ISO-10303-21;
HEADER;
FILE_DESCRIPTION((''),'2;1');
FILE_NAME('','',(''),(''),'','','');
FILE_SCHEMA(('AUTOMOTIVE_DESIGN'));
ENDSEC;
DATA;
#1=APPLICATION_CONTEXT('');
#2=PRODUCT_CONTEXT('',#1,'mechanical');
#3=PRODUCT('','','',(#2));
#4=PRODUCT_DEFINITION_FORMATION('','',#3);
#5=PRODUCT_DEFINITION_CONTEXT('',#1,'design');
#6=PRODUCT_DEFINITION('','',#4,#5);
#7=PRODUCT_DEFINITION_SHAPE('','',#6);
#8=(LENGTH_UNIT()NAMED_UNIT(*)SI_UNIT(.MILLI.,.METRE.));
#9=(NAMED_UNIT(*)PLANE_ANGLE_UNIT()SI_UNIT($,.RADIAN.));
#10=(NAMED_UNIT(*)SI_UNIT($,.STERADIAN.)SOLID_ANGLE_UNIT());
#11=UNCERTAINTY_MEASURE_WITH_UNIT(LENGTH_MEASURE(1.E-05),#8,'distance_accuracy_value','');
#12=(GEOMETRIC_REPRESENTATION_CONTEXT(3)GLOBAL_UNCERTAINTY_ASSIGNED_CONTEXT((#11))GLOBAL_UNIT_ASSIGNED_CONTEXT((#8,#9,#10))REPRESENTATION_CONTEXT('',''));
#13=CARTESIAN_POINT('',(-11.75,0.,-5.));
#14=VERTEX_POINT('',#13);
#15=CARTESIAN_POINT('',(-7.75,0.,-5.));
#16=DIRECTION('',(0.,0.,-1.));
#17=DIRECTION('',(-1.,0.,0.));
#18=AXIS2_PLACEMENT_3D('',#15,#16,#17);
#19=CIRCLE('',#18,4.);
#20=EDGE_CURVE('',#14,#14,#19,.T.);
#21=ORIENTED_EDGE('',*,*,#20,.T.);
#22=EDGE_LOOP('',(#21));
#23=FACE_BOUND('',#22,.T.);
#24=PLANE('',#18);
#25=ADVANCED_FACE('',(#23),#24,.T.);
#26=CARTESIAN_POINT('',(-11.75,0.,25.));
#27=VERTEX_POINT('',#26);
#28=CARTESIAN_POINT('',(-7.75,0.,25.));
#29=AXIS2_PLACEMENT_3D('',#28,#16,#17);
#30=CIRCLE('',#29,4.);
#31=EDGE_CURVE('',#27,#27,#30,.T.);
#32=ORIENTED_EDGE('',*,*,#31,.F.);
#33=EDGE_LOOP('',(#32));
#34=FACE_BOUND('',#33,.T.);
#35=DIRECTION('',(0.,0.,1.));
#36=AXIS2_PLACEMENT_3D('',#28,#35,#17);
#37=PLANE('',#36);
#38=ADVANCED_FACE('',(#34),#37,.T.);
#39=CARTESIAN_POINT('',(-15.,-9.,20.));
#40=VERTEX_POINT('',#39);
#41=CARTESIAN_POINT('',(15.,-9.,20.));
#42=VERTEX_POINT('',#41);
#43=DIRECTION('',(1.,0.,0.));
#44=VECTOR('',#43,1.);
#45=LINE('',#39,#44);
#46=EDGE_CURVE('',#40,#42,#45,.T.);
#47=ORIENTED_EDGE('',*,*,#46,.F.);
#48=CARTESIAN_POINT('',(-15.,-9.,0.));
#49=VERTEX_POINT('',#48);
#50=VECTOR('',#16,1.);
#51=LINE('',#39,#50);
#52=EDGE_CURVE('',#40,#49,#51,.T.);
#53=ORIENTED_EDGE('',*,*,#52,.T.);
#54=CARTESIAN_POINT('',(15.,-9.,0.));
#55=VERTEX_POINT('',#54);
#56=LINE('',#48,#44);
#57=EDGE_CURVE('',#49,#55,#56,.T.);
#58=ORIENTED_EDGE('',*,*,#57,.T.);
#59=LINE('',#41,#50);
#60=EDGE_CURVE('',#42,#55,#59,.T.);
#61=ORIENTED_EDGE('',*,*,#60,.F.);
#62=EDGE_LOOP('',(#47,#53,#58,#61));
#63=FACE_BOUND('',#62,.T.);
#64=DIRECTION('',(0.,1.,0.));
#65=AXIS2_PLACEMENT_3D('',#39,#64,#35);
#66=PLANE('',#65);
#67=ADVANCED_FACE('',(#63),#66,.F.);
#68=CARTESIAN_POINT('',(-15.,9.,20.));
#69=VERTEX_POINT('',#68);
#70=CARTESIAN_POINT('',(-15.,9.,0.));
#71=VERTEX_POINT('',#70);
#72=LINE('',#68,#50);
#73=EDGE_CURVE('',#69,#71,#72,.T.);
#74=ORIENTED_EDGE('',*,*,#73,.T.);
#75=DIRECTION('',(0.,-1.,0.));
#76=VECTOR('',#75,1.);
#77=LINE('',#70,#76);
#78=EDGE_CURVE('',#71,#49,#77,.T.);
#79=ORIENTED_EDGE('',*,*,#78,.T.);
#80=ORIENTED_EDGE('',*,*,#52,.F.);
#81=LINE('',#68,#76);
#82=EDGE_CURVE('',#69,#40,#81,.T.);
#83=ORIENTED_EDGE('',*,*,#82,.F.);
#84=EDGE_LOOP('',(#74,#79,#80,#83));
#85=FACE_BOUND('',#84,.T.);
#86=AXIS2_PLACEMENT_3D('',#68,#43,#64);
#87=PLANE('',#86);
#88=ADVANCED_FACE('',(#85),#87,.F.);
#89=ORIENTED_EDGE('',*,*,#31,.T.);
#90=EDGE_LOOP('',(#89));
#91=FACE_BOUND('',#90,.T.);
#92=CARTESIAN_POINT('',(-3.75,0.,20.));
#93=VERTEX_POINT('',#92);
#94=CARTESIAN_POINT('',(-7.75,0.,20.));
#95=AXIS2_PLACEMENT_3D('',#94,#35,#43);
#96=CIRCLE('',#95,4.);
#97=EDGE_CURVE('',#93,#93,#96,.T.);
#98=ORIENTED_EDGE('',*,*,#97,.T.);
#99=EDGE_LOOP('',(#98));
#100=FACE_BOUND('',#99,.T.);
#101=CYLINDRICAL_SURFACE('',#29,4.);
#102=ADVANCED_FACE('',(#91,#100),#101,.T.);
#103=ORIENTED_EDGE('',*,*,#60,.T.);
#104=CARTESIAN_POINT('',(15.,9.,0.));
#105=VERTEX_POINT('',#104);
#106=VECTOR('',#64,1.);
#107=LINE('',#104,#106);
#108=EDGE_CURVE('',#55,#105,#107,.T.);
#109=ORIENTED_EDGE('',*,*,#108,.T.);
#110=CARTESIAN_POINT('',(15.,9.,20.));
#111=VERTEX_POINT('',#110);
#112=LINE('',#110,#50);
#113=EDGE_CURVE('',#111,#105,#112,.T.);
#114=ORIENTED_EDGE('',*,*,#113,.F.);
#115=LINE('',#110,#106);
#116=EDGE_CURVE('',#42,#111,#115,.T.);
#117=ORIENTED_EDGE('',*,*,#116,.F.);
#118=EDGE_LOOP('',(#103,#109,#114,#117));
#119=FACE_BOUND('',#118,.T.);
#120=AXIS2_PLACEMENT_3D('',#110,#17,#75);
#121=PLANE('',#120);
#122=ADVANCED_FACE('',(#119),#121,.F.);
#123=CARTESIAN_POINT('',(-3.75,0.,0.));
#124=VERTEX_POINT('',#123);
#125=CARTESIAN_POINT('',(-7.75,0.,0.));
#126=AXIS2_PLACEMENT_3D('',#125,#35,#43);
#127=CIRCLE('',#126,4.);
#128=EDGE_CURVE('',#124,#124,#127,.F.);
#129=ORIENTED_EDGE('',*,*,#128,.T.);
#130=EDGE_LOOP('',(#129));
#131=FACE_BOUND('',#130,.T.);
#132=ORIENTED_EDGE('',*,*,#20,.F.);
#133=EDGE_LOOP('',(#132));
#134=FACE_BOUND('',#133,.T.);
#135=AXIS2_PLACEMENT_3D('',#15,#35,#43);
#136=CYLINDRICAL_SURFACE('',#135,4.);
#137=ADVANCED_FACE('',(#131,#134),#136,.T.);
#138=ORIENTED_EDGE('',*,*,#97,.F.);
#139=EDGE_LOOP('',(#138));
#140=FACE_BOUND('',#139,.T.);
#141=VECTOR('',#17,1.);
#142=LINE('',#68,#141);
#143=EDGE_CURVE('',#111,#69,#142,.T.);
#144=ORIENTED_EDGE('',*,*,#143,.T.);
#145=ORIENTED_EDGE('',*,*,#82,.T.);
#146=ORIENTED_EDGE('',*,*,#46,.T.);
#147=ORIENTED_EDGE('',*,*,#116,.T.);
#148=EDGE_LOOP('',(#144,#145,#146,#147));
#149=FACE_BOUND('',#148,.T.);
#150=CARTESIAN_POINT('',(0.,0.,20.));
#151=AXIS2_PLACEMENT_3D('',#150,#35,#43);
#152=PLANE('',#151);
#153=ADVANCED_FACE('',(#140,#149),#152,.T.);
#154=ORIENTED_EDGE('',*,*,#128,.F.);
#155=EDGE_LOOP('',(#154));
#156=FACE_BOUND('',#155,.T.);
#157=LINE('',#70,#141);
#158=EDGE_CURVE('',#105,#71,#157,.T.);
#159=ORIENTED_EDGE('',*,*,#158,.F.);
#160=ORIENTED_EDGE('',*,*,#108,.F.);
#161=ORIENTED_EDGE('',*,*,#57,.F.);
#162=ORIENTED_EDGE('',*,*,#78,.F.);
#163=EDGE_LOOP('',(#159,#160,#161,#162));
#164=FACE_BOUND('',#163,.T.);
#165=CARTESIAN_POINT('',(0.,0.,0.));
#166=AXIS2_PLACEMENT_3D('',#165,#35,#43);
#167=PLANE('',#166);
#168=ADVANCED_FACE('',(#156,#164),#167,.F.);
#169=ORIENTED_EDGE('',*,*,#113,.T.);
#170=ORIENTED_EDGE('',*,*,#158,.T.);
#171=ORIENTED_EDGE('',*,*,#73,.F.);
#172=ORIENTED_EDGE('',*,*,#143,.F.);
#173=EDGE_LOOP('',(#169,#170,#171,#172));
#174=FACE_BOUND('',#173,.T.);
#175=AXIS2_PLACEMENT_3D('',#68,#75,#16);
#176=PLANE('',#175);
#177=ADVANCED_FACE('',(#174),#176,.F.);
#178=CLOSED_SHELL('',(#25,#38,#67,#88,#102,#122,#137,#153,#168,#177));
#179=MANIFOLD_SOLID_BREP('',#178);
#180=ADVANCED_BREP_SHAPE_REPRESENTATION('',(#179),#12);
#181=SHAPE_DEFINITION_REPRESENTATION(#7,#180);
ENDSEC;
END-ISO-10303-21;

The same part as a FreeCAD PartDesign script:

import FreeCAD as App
import Part
import Sketcher
Q = App.Units.Quantity

doc = App.newDocument("Part")
body = doc.addObject("PartDesign::Body", "Body")

# Sketch on XY plane
sketch1 = body.newObject("Sketcher::SketchObject", "Sketch")
sketch1.AttachmentSupport = (doc.getObject("XY_Plane"), [""])
sketch1.MapMode = "FlatFace"
sketch1.addGeometry([
    Part.LineSegment(App.Vector(-15, 9, 0), App.Vector(-15, -9, 0)),
    Part.LineSegment(App.Vector(-15, -9, 0), App.Vector(15, -9, 0)),
    Part.LineSegment(App.Vector(15, -9, 0), App.Vector(15, 9, 0)),
    Part.LineSegment(App.Vector(15, 9, 0), App.Vector(-15, 9, 0)),
], False)
sketch1.addConstraint([
    Sketcher.Constraint("Coincident", 0, 2, 1, 1),
    Sketcher.Constraint("Coincident", 1, 2, 2, 1),
    Sketcher.Constraint("Coincident", 2, 2, 3, 1),
    Sketcher.Constraint("Coincident", 3, 2, 0, 1),
    Sketcher.Constraint("Vertical", 0),
    Sketcher.Constraint("Horizontal", 1),
    Sketcher.Constraint("Vertical", 2),
    Sketcher.Constraint("Horizontal", 3),
    Sketcher.Constraint("Symmetric", 0, 2, 2, 2, -1, 1),
    Sketcher.Constraint("DistanceX", 1, 1, 1, 2, Q("30 mm")),
    Sketcher.Constraint("DistanceY", 0, 2, 0, 1, Q("18 mm")),
])
pad1 = body.newObject("PartDesign::Pad", "Pad")
pad1.Profile = sketch1
pad1.Length = 20

# Sketch on XY plane
sketch2 = body.newObject("Sketcher::SketchObject", "Sketch001")
sketch2.AttachmentSupport = (doc.getObject("XY_Plane"), [""])
sketch2.MapMode = "FlatFace"
sketch2.addGeometry(Part.Circle(App.Vector(-7.75, 0, 0), App.Vector(0, 0, 1), 4), False)
sketch2.addConstraint([
    Sketcher.Constraint("PointOnObject", 0, 3, -1),
    Sketcher.Constraint("Diameter", 0, Q("8 mm")),
    Sketcher.Constraint("DistanceX", 0, 3, -1, 1, Q("7.75 mm")),
])
pad2 = body.newObject("PartDesign::Pad", "Pad001")
pad2.Profile = sketch2
pad2.Length = 5
pad2.Reversed = True
doc.recompute()

datumplane = body.newObject("PartDesign::Plane", "DatumPlane")
datumplane.AttachmentSupport = (doc.getObject("XY_Plane"), [""])
datumplane.MapMode = "FlatFace"
datumplane.AttachmentOffset = App.Placement(App.Vector(0, 0, 10), App.Rotation())
mirrored = body.newObject("PartDesign::Mirrored", "Mirrored")
mirrored.Originals = [pad2]
mirrored.MirrorPlane = (datumplane, [""])
body.Tip = mirrored

doc.recompute()
